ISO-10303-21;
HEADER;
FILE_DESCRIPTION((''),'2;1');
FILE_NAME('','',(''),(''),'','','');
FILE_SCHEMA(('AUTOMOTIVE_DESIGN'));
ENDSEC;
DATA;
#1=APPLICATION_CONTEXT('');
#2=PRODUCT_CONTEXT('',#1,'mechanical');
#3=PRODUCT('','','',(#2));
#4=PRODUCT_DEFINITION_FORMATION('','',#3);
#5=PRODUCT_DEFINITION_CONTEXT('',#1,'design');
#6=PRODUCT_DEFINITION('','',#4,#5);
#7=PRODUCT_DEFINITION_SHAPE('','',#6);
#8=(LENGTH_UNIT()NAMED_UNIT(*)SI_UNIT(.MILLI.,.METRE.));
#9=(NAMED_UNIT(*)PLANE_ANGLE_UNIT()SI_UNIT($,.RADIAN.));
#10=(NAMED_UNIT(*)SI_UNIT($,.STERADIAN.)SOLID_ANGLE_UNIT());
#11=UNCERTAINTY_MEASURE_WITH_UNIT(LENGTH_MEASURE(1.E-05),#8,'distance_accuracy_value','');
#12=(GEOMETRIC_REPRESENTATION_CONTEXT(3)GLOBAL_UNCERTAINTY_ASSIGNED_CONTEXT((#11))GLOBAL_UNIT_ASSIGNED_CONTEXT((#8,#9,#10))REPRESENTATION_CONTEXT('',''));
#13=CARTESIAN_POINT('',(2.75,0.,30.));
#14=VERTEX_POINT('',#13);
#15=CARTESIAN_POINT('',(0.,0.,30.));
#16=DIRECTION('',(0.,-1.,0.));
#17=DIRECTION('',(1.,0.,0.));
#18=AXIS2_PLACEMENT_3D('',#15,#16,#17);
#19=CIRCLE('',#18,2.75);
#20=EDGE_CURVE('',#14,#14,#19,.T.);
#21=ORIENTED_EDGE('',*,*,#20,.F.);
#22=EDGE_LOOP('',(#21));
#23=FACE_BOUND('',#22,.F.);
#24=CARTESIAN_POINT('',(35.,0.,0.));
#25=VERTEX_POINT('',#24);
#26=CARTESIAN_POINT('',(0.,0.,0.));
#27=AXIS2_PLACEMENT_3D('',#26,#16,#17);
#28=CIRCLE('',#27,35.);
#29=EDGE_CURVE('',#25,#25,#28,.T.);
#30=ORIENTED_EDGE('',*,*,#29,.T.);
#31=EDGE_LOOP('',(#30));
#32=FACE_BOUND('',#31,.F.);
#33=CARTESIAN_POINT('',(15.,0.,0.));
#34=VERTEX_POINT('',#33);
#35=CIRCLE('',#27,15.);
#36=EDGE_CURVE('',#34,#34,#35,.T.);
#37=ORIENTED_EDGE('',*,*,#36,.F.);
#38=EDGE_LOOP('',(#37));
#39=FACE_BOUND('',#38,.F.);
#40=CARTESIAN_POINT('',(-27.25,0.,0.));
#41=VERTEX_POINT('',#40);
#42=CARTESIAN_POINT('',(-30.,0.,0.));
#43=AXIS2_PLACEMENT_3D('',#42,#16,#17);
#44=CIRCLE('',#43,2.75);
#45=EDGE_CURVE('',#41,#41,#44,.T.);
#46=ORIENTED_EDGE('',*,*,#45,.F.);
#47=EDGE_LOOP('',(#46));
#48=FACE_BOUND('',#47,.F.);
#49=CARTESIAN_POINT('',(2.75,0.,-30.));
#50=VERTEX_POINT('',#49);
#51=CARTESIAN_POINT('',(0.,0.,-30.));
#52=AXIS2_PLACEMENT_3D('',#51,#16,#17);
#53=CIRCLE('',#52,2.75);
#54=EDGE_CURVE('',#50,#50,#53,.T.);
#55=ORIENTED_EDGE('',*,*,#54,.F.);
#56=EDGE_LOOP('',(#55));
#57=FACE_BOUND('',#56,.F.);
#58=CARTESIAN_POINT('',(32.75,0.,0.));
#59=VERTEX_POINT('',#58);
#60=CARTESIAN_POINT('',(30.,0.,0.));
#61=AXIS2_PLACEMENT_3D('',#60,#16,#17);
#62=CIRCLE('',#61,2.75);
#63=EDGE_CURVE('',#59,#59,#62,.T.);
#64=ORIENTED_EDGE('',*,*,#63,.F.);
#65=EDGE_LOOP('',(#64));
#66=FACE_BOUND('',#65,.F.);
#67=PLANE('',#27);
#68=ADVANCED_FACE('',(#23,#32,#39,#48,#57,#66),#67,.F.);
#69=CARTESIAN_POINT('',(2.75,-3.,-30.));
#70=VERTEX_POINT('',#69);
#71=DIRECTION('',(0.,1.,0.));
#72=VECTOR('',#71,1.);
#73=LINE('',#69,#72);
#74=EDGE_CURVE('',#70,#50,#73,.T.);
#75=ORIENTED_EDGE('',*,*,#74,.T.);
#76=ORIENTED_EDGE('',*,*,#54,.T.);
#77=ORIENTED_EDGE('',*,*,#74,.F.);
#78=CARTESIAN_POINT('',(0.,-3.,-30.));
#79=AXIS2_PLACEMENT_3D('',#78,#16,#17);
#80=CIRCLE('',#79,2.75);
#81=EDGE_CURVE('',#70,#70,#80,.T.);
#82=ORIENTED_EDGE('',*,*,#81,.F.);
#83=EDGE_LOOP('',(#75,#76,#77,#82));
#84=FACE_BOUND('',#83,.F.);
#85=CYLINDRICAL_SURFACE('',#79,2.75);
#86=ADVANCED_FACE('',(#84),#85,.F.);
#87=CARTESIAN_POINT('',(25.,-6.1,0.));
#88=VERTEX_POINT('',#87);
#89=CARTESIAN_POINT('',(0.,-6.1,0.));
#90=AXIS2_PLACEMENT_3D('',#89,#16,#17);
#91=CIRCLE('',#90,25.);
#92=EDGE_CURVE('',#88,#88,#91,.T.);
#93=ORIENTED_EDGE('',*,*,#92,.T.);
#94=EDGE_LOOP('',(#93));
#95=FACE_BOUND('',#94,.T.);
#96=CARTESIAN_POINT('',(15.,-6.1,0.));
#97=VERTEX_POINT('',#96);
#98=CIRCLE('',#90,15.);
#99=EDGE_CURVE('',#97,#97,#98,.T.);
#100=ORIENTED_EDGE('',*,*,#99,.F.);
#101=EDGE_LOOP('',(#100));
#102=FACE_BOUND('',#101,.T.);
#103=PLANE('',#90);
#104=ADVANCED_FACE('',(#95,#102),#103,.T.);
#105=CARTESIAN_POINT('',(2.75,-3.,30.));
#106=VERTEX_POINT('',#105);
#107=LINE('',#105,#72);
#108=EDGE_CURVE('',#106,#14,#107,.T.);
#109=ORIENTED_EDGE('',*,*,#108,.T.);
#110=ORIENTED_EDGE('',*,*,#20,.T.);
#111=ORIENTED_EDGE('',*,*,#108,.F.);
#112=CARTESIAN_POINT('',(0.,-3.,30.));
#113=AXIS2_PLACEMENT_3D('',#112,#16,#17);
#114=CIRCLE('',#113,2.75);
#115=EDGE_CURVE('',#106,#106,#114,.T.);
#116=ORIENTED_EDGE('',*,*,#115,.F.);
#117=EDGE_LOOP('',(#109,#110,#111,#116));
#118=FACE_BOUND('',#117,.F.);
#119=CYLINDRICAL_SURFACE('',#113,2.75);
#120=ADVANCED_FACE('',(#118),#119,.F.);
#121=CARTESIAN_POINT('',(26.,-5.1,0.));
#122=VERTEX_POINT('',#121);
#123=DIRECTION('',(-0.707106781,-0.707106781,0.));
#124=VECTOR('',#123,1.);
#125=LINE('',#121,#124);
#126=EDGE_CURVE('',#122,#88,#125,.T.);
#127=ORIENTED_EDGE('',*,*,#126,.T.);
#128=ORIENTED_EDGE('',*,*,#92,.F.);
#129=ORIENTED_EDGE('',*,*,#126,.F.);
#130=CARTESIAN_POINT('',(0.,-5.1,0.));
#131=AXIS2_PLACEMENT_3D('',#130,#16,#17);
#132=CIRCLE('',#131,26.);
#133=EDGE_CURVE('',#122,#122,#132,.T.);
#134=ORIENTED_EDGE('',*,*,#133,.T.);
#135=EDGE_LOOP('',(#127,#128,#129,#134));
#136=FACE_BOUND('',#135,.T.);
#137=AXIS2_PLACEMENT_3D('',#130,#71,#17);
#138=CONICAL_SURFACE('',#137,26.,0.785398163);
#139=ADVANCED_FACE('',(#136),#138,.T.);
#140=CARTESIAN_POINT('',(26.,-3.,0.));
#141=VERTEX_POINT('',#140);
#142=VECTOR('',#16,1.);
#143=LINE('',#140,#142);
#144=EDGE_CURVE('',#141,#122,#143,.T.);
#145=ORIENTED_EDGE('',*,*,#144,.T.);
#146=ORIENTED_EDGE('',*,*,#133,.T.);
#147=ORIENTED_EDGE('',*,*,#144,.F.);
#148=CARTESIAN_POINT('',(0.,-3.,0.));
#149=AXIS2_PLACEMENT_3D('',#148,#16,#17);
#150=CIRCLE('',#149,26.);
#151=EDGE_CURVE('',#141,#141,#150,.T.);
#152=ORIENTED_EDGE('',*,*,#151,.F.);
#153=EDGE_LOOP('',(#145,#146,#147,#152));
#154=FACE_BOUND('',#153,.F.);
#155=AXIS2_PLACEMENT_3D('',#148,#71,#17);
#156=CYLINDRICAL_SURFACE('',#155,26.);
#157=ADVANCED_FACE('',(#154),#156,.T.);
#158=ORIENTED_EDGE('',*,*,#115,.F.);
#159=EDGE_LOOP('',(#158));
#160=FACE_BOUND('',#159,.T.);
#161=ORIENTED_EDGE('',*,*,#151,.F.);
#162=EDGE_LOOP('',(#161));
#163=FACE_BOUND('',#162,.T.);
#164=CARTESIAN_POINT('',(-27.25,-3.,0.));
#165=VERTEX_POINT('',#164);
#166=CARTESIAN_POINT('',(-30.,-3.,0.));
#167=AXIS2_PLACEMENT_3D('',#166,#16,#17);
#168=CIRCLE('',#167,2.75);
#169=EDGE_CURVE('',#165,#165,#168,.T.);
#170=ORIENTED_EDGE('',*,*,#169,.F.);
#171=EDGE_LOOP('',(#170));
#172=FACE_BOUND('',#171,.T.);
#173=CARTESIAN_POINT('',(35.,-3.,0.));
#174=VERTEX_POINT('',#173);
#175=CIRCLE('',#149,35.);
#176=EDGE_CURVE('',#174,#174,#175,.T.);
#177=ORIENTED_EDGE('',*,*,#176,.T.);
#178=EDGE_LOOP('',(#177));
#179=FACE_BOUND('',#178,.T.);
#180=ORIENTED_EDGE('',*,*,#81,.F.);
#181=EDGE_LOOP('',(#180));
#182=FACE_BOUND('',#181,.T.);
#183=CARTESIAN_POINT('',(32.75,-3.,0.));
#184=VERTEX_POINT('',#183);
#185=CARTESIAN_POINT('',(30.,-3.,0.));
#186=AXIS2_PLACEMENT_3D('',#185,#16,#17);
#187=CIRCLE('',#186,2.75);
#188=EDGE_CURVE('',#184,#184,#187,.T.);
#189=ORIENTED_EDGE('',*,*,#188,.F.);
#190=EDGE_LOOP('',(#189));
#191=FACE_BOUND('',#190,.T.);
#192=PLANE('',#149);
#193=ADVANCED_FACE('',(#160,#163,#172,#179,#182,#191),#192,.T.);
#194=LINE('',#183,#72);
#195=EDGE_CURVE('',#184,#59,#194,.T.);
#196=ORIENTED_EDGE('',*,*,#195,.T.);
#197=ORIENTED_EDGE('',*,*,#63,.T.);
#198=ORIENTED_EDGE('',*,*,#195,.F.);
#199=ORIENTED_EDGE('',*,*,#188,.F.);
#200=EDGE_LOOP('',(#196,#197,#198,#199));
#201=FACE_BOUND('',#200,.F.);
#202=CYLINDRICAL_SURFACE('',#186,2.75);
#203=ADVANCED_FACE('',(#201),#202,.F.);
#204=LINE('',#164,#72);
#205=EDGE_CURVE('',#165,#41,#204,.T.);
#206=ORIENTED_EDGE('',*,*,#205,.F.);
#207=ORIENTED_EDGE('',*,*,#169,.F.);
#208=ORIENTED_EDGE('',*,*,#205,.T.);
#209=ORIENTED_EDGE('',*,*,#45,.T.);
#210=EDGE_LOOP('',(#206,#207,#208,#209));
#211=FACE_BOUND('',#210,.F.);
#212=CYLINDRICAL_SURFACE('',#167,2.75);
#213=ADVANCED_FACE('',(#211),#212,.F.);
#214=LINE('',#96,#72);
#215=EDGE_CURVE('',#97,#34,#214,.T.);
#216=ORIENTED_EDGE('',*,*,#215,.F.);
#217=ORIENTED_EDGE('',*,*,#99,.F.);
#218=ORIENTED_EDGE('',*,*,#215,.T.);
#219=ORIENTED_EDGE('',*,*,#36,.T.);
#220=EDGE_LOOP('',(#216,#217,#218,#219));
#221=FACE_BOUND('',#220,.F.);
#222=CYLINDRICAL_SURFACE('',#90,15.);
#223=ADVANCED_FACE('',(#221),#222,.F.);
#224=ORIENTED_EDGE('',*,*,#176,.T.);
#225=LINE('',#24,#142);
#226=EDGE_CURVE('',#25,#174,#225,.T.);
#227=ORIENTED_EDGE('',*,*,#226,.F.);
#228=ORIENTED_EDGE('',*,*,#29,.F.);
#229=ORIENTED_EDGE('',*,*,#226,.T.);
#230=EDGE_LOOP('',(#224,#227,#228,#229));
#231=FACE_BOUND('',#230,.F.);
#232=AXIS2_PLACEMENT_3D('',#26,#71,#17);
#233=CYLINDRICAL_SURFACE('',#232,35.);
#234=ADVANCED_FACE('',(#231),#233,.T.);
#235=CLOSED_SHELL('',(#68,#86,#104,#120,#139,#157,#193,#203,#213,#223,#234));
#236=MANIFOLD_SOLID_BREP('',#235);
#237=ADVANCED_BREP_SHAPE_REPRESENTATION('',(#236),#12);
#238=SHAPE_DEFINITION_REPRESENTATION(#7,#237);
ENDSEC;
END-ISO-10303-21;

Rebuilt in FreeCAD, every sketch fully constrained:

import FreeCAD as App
import Part
import Sketcher
from FreeCAD import Vector
Q = App.Units.Quantity


def edges_at(feature, points):
    """Names of the edges that pass closest to the given points."""
    edges = feature.Shape.Edges
    near = lambda p: min(range(len(edges)), key=lambda i: edges[i].distToShape(Part.Vertex(*p))[0])
    return sorted({f"Edge{near(p) + 1}" for p in points})

doc = App.newDocument("Part")
body = doc.addObject("PartDesign::Body", "Body")

sketch1 = body.newObject("Sketcher::SketchObject", "Sketch")
sketch1.AttachmentSupport = (doc.getObject("XZ_Plane"), [""])
sketch1.MapMode = "FlatFace"
sketch1.addGeometry(Part.Circle(Vector(0, 0, 0), Vector(0, 0, 1), 35), False)
sketch1.addConstraint(Sketcher.Constraint("Coincident", 0, 3, -1, 1))
sketch1.addConstraint(Sketcher.Constraint("Diameter", 0, Q("70 mm")))
pad1 = body.newObject("PartDesign::Pad", "Pad")
pad1.Profile = sketch1
pad1.Length = 3

sketch2 = body.newObject("Sketcher::SketchObject", "Sketch001")
sketch2.AttachmentSupport = (doc.getObject("XZ_Plane"), [""])
sketch2.MapMode = "FlatFace"
sketch2.AttachmentOffset = App.Placement(Vector(0, 0, 3), App.Rotation())
sketch2.addGeometry(Part.Circle(Vector(30, 0, 0), Vector(0, 0, 1), 2.8), False)
sketch2.addGeometry(Part.Circle(Vector(0, 30, 0), Vector(0, 0, 1), 2.8), False)
sketch2.addGeometry(Part.Circle(Vector(-30, 0, 0), Vector(0, 0, 1), 2.8), False)
sketch2.addGeometry(Part.Circle(Vector(0, -30, 0), Vector(0, 0, 1), 2.8), False)
sketch2.addConstraint(Sketcher.Constraint("Equal", 0, 1))
sketch2.addConstraint(Sketcher.Constraint("Equal", 1, 2))
sketch2.addConstraint(Sketcher.Constraint("Equal", 2, 3))
sketch2.addConstraint(Sketcher.Constraint("Symmetric", 0, 3, 2, 3, -1, 1))
sketch2.addConstraint(Sketcher.Constraint("Symmetric", 1, 3, 3, 3, -1, 1))
sketch2.addConstraint(Sketcher.Constraint("PointOnObject", 0, 3, -1))
sketch2.addConstraint(Sketcher.Constraint("PointOnObject", 1, 3, -2))
sketch2.addConstraint(Sketcher.Constraint("Diameter", 0, Q("5.5 mm")))
sketch2.addConstraint(Sketcher.Constraint("DistanceX", -1, 1, 0, 3, Q("30 mm")))
sketch2.addConstraint(Sketcher.Constraint("DistanceY", -1, 1, 1, 3, Q("30 mm")))
pocket1 = body.newObject("PartDesign::Pocket", "Pocket")
pocket1.Profile = sketch2
pocket1.Type = "ThroughAll"

sketch3 = body.newObject("Sketcher::SketchObject", "Sketch002")
sketch3.AttachmentSupport = (doc.getObject("XZ_Plane"), [""])
sketch3.MapMode = "FlatFace"
sketch3.AttachmentOffset = App.Placement(Vector(0, 0, 3), App.Rotation())
sketch3.addGeometry(Part.Circle(Vector(0, 0, 0), Vector(0, 0, 1), 26), False)
sketch3.addConstraint(Sketcher.Constraint("Coincident", 0, 3, -1, 1))
sketch3.addConstraint(Sketcher.Constraint("Diameter", 0, Q("52 mm")))
pad2 = body.newObject("PartDesign::Pad", "Pad001")
pad2.Profile = sketch3
pad2.Length = 3.1

sketch4 = body.newObject("Sketcher::SketchObject", "Sketch003")
sketch4.AttachmentSupport = (doc.getObject("XZ_Plane"), [""])
sketch4.MapMode = "FlatFace"
sketch4.AttachmentOffset = App.Placement(Vector(0, 0, 6.1), App.Rotation())
sketch4.addGeometry(Part.Circle(Vector(0, 0, 0), Vector(0, 0, 1), 15), False)
sketch4.addConstraint(Sketcher.Constraint("Coincident", 0, 3, -1, 1))
sketch4.addConstraint(Sketcher.Constraint("Diameter", 0, Q("30 mm")))
pocket2 = body.newObject("PartDesign::Pocket", "Pocket001")
pocket2.Profile = sketch4
pocket2.Type = "ThroughAll"
doc.recompute()

chamfer = body.newObject("PartDesign::Chamfer", "Chamfer")
chamfer.Base = (pocket2, edges_at(pocket2, [(-26, -6.1, 0)]))
chamfer.Size = 1

doc.recompute()
